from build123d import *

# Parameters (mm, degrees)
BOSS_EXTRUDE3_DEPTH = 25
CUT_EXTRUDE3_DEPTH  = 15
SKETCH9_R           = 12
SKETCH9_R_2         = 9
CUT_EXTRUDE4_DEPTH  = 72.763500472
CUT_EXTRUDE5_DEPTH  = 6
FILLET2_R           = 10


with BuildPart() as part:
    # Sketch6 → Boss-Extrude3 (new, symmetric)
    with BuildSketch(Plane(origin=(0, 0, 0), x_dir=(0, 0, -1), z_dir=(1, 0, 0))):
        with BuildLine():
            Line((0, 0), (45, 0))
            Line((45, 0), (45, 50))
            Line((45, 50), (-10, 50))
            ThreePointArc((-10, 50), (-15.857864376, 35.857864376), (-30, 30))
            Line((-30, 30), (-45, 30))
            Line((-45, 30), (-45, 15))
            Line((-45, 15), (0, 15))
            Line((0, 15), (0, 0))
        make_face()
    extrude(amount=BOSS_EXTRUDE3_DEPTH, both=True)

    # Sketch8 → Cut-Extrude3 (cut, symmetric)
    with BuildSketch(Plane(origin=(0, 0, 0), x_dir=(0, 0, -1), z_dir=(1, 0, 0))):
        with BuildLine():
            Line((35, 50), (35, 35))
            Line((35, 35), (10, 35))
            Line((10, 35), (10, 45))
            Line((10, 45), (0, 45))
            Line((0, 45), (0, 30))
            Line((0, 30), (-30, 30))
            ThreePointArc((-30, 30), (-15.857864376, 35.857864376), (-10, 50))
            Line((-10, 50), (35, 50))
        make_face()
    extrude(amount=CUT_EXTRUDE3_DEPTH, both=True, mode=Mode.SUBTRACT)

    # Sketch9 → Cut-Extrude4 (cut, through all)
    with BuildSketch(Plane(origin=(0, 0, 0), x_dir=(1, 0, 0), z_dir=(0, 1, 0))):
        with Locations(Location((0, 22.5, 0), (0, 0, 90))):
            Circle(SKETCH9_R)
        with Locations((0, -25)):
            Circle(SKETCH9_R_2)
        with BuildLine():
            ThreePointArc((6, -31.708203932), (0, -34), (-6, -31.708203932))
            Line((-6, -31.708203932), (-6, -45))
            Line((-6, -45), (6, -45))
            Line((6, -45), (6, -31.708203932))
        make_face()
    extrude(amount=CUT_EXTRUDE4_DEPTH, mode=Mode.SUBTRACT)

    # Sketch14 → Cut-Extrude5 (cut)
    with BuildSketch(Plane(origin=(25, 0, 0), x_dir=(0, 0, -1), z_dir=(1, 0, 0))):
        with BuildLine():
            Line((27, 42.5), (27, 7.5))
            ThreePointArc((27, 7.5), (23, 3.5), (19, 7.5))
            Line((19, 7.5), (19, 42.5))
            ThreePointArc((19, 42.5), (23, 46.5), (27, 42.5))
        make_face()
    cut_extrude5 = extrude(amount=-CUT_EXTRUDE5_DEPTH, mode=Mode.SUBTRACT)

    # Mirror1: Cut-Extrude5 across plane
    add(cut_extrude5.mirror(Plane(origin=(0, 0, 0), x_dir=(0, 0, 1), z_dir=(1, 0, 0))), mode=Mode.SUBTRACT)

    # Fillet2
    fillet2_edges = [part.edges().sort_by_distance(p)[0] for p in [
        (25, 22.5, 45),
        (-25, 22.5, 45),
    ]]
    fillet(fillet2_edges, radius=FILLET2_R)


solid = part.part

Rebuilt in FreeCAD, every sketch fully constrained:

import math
import FreeCAD as App
import Part
import Sketcher
from FreeCAD import Vector


def edges_at(feature, points):
    """Names of the edges that pass closest to the given points."""
    edges = feature.Shape.Edges
    near = lambda p: min(range(len(edges)), key=lambda i: edges[i].distToShape(Part.Vertex(*p))[0])
    return sorted({f"Edge{near(p) + 1}" for p in points})

doc = App.newDocument("Part")
body = doc.addObject("PartDesign::Body", "Body")

sketch1 = body.newObject("Sketcher::SketchObject", "Sketch")
sketch1.AttachmentSupport = (doc.getObject("YZ_Plane"), [""])
sketch1.MapMode = "FlatFace"
sketch1.addGeometry([
    Part.LineSegment(Vector(0, 0, 0), Vector(0, -45, 0)),
    Part.LineSegment(Vector(0, -45, 0), Vector(50, -45, 0)),
    Part.LineSegment(Vector(50, -45, 0), Vector(50, 10, 0)),
    Part.ArcOfCircle(Part.Circle(Vector(50, 30, 0), Vector(0, 0, 1), 20), math.radians(180), math.radians(270)),
    Part.LineSegment(Vector(30, 30, 0), Vector(30, 45, 0)),
    Part.LineSegment(Vector(30, 45, 0), Vector(15, 45, 0)),
    Part.LineSegment(Vector(15, 45, 0), Vector(15, 0, 0)),
    Part.LineSegment(Vector(15, 0, 0), Vector(0, 0, 0)),
], False)
sketch1.addConstraint([
    Sketcher.Constraint("Coincident", 0, 2, 1, 1),
    Sketcher.Constraint("Coincident", 1, 2, 2, 1),
    Sketcher.Constraint("Coincident", 2, 2, 3, 2),
    Sketcher.Constraint("Tangent", 3, 1, 4, 1),
    Sketcher.Constraint("Coincident", 4, 2, 5, 1),
    Sketcher.Constraint("Coincident", 5, 2, 6, 1),
    Sketcher.Constraint("Coincident", 6, 2, 7, 1),
    Sketcher.Constraint("Coincident", 7, 2, 0, 1),
    Sketcher.Constraint("Vertical", 0),
    Sketcher.Constraint("Horizontal", 1),
    Sketcher.Constraint("Vertical", 2),
    Sketcher.Constraint("Vertical", 4),
    Sketcher.Constraint("Horizontal", 5),
    Sketcher.Constraint("Vertical", 6),
    Sketcher.Constraint("Horizontal", 7),
    Sketcher.Constraint("Coincident", 7, 2, -1, 1),
    Sketcher.Constraint("Vertical", 3, 3, 1, 2),
    Sketcher.Constraint("Equal", 5, 7),
    Sketcher.Constraint("Equal", 7, 4),
    Sketcher.Constraint("Equal", 0, 6),
    Sketcher.Constraint("Radius", 3, 20.0),
    Sketcher.Constraint("DistanceX", 1, 1, 1, 2, 50.0),
    Sketcher.Constraint("DistanceY", 0, 2, 0, 1, 45.0),
])
pad1 = body.newObject("PartDesign::Pad", "Pad")
pad1.Profile = sketch1
pad1.Length = 50
pad1.Midplane = True

sketch2 = body.newObject("Sketcher::SketchObject", "Sketch001")
sketch2.AttachmentSupport = (doc.getObject("YZ_Plane"), [""])
sketch2.MapMode = "FlatFace"
sketch2.addGeometry([
    Part.LineSegment(Vector(35, -35, 0), Vector(50, -35, 0)),
    Part.LineSegment(Vector(50, -35, 0), Vector(50, 10, 0)),
    Part.ArcOfCircle(Part.Circle(Vector(50, 30, 0), Vector(0, 0, 1), 20), math.radians(180), math.radians(270)),
    Part.LineSegment(Vector(30, 30, 0), Vector(30, 0, 0)),
    Part.LineSegment(Vector(30, 0, 0), Vector(45, 0, 0)),
    Part.LineSegment(Vector(45, 0, 0), Vector(45, -10, 0)),
    Part.LineSegment(Vector(45, -10, 0), Vector(35, -10, 0)),
    Part.LineSegment(Vector(35, -10, 0), Vector(35, -35, 0)),
], False)
sketch2.addConstraint([
    Sketcher.Constraint("Coincident", 0, 2, 1, 1),
    Sketcher.Constraint("Coincident", 1, 2, 2, 2),
    Sketcher.Constraint("Tangent", 2, 1, 3, 1),
    Sketcher.Constraint("Coincident", 3, 2, 4, 1),
    Sketcher.Constraint("Coincident", 4, 2, 5, 1),
    Sketcher.Constraint("Coincident", 5, 2, 6, 1),
    Sketcher.Constraint("Coincident", 6, 2, 7, 1),
    Sketcher.Constraint("Coincident", 7, 2, 0, 1),
    Sketcher.Constraint("Horizontal", 0),
    Sketcher.Constraint("Vertical", 1),
    Sketcher.Constraint("Vertical", 3),
    Sketcher.Constraint("Horizontal", 4),
    Sketcher.Constraint("Vertical", 5),
    Sketcher.Constraint("Horizontal", 6),
    Sketcher.Constraint("Vertical", 7),
    Sketcher.Constraint("PointOnObject", 3, 2, -1),
    Sketcher.Constraint("Vertical", 2, 3, 0, 2),
    Sketcher.Constraint("Equal", 0, 4),
    Sketcher.Constraint("Equal", 6, 5),
    Sketcher.Constraint("Radius", 2, 20.0),
    Sketcher.Constraint("DistanceX", 0, 1, 0, 2, 15.0),
    Sketcher.Constraint("DistanceY", 1, 1, 1, 2, 45.0),
    Sketcher.Constraint("DistanceY", 3, 2, 3, 1, 30.0),
    Sketcher.Constraint("DistanceX", -1, 1, 2, 3, 50.0),
])
pocket1 = body.newObject("PartDesign::Pocket", "Pocket")
pocket1.Profile = sketch2
pocket1.Length = 30
pocket1.Midplane = True

sketch3 = body.newObject("Sketcher::SketchObject", "Sketch002")
sketch3.AttachmentSupport = (doc.getObject("XZ_Plane"), [""])
sketch3.MapMode = "FlatFace"
sketch3.addGeometry([
    Part.Circle(Vector(0, -22.5, 0), Vector(0, 0, 1), 12),
    Part.LineSegment(Vector(-6, 31.708204, 0), Vector(-6, 45, 0)),
    Part.LineSegment(Vector(-6, 45, 0), Vector(6, 45, 0)),
    Part.LineSegment(Vector(6, 45, 0), Vector(6, 31.708204, 0)),
    Part.ArcOfCircle(Part.Circle(Vector(0, 25, 0), Vector(0, 0, 1), 9), math.radians(131.810315), math.radians(408.189685)),
], False)
sketch3.addConstraint([
    Sketcher.Constraint("Coincident", 1, 2, 2, 1),
    Sketcher.Constraint("Coincident", 2, 2, 3, 1),
    Sketcher.Constraint("Coincident", 3, 2, 4, 2),
    Sketcher.Constraint("Coincident", 4, 1, 1, 1),
    Sketcher.Constraint("Vertical", 1),
    Sketcher.Constraint("Horizontal", 2),
    Sketcher.Constraint("Vertical", 3),
    Sketcher.Constraint("Symmetric", 3, 2, 4, 1, -2),
    Sketcher.Constraint("PointOnObject", 0, 3, -2),
    Sketcher.Constraint("Diameter", 0, 24.0),
    Sketcher.Constraint("Radius", 4, 9.0),
    Sketcher.Constraint("DistanceX", 2, 1, 2, 2, 12.0),
    Sketcher.Constraint("DistanceY", -1, 1, 4, 3, 25.0),
    Sketcher.Constraint("DistanceY", -1, 1, 1, 2, 45.0),
    Sketcher.Constraint("DistanceY", 0, 3, -1, 1, 22.5),
])
pocket2 = body.newObject("PartDesign::Pocket", "Pocket001")
pocket2.Profile = sketch3
pocket2.Type = "ThroughAll"

sketch4 = body.newObject("Sketcher::SketchObject", "Sketch003")
sketch4.AttachmentSupport = (doc.getObject("YZ_Plane"), [""])
sketch4.MapMode = "FlatFace"
sketch4.AttachmentOffset = App.Placement(Vector(0, 0, 25), App.Rotation())
sketch4.addGeometry([
    Part.LineSegment(Vector(7.5, -27, 0), Vector(42.5, -27, 0)),
    Part.ArcOfCircle(Part.Circle(Vector(42.5, -23, 0), Vector(0, 0, 1), 4), math.radians(-90), math.radians(90)),
    Part.LineSegment(Vector(42.5, -19, 0), Vector(7.5, -19, 0)),
    Part.ArcOfCircle(Part.Circle(Vector(7.5, -23, 0), Vector(0, 0, 1), 4), math.radians(90), math.radians(270)),
], False)
sketch4.addConstraint([
    Sketcher.Constraint("Tangent", 0, 2, 1, 1),
    Sketcher.Constraint("Tangent", 1, 2, 2, 1),
    Sketcher.Constraint("Tangent", 2, 2, 3, 1),
    Sketcher.Constraint("Tangent", 3, 2, 0, 1),
    Sketcher.Constraint("Horizontal", 0),
    Sketcher.Constraint("Horizontal", 2),
    Sketcher.Constraint("Radius", 1, 4.0),
    Sketcher.Constraint("DistanceX", 0, 1, 0, 2, 35.0),
    Sketcher.Constraint("DistanceY", 1, 3, -1, 1, 23.0),
    Sketcher.Constraint("DistanceX", -1, 1, 1, 3, 42.5),
])
pocket3 = body.newObject("PartDesign::Pocket", "Pocket002")
pocket3.Profile = sketch4
pocket3.Length = 6
doc.recompute()

mirrored = body.newObject("PartDesign::Mirrored", "Mirrored")
mirrored.Originals = [pocket3]
mirrored.MirrorPlane = (doc.getObject("YZ_Plane"), [""])
body.Tip = mirrored
doc.recompute()

fillet = body.newObject("PartDesign::Fillet", "Fillet")
fillet.Base = (mirrored, edges_at(mirrored, [(25, 22.5, 45), (-25, 22.5, 45)]))
fillet.Radius = 10

doc.recompute()
